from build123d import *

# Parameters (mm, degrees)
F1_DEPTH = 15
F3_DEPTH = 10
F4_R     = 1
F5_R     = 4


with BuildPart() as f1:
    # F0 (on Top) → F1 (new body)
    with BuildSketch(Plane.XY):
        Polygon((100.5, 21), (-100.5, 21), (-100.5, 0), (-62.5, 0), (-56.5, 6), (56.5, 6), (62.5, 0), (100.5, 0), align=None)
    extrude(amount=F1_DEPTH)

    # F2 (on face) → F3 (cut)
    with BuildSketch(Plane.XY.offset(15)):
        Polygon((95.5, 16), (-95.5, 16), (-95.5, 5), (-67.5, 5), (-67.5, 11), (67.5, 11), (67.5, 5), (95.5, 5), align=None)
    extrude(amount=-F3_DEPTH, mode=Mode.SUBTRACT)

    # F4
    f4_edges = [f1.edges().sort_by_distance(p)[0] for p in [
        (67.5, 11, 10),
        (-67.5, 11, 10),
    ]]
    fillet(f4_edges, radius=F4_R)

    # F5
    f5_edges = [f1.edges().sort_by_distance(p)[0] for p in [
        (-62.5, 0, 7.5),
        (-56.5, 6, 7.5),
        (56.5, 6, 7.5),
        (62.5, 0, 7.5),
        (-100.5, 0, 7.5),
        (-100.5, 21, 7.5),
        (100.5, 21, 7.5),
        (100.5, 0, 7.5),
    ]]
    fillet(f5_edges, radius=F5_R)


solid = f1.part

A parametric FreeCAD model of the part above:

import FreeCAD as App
import Part
import Sketcher
from FreeCAD import Vector


def edges_at(feature, points):
    """Names of the edges that pass closest to the given points."""
    edges = feature.Shape.Edges
    near = lambda p: min(range(len(edges)), key=lambda i: edges[i].distToShape(Part.Vertex(*p))[0])
    return sorted({f"Edge{near(p) + 1}" for p in points})

doc = App.newDocument("Part")
body = doc.addObject("PartDesign::Body", "Body")

sketch1 = doc.addObject("Sketcher::SketchObject", "Sketch")
body.addObject(sketch1)
sketch1.AttachmentSupport = (doc.XY_Plane, [""])
sketch1.MapMode = "FlatFace"
sketch1.addGeometry(Part.LineSegment(Vector(100, 21, 0), Vector(-100, 21, 0)), False)
sketch1.addGeometry(Part.LineSegment(Vector(-100, 21, 0), Vector(-100, 0, 0)), False)
sketch1.addGeometry(Part.LineSegment(Vector(-100, 0, 0), Vector(-62, 0, 0)), False)
sketch1.addGeometry(Part.LineSegment(Vector(-62, 0, 0), Vector(-56, 6, 0)), False)
sketch1.addGeometry(Part.LineSegment(Vector(-56, 6, 0), Vector(56, 6, 0)), False)
sketch1.addGeometry(Part.LineSegment(Vector(56, 6, 0), Vector(62, 0, 0)), False)
sketch1.addGeometry(Part.LineSegment(Vector(62, 0, 0), Vector(100, 0, 0)), False)
sketch1.addGeometry(Part.LineSegment(Vector(100, 0, 0), Vector(100, 21, 0)), False)
sketch1.addConstraint(Sketcher.Constraint("Coincident", 0, 2, 1, 1))
sketch1.addConstraint(Sketcher.Constraint("Coincident", 1, 2, 2, 1))
sketch1.addConstraint(Sketcher.Constraint("Coincident", 2, 2, 3, 1))
sketch1.addConstraint(Sketcher.Constraint("Coincident", 3, 2, 4, 1))
sketch1.addConstraint(Sketcher.Constraint("Coincident", 4, 2, 5, 1))
sketch1.addConstraint(Sketcher.Constraint("Coincident", 5, 2, 6, 1))
sketch1.addConstraint(Sketcher.Constraint("Coincident", 6, 2, 7, 1))
sketch1.addConstraint(Sketcher.Constraint("Coincident", 7, 2, 0, 1))
sketch1.addConstraint(Sketcher.Constraint("Horizontal", 0))
sketch1.addConstraint(Sketcher.Constraint("Vertical", 1))
sketch1.addConstraint(Sketcher.Constraint("Horizontal", 2))
sketch1.addConstraint(Sketcher.Constraint("Horizontal", 4))
sketch1.addConstraint(Sketcher.Constraint("Horizontal", 6))
sketch1.addConstraint(Sketcher.Constraint("Vertical", 7))
sketch1.addConstraint(Sketcher.Constraint("Symmetric", 2, 2, 5, 2, -1, 1))
sketch1.addConstraint(Sketcher.Constraint("Symmetric", 1, 2, 6, 2, -2))
sketch1.addConstraint(Sketcher.Constraint("Perpendicular", 3, 5))
sketch1.addConstraint(Sketcher.Constraint("Equal", 3, 5))
sketch1.addConstraint(Sketcher.Constraint("DistanceX", 0, 2, 0, 1, 201.0))
sketch1.addConstraint(Sketcher.Constraint("DistanceX", 2, 1, 2, 2, 38.0))
sketch1.addConstraint(Sketcher.Constraint("DistanceX", 4, 1, 4, 2, 113.0))
sketch1.addConstraint(Sketcher.Constraint("DistanceY", 1, 2, 1, 1, 21.0))
pad1 = doc.addObject("PartDesign::Pad", "Pad")
body.addObject(pad1)
pad1.Profile = sketch1
pad1.Length = 15

sketch2 = doc.addObject("Sketcher::SketchObject", "Sketch001")
body.addObject(sketch2)
sketch2.AttachmentSupport = (doc.XY_Plane, [""])
sketch2.MapMode = "FlatFace"
sketch2.AttachmentOffset = App.Placement(Vector(0, 0, 15), App.Rotation())
sketch2.addGeometry(Part.LineSegment(Vector(96, 16, 0), Vector(-96, 16, 0)), False)
sketch2.addGeometry(Part.LineSegment(Vector(-96, 16, 0), Vector(-96, 5, 0)), False)
sketch2.addGeometry(Part.LineSegment(Vector(-96, 5, 0), Vector(-68, 5, 0)), False)
sketch2.addGeometry(Part.LineSegment(Vector(-68, 5, 0), Vector(-68, 11, 0)), False)
sketch2.addGeometry(Part.LineSegment(Vector(-68, 11, 0), Vector(68, 11, 0)), False)
sketch2.addGeometry(Part.LineSegment(Vector(68, 11, 0), Vector(68, 5, 0)), False)
sketch2.addGeometry(Part.LineSegment(Vector(68, 5, 0), Vector(96, 5, 0)), False)
sketch2.addGeometry(Part.LineSegment(Vector(96, 5, 0), Vector(96, 16, 0)), False)
sketch2.addConstraint(Sketcher.Constraint("Coincident", 0, 2, 1, 1))
sketch2.addConstraint(Sketcher.Constraint("Coincident", 1, 2, 2, 1))
sketch2.addConstraint(Sketcher.Constraint("Coincident", 2, 2, 3, 1))
sketch2.addConstraint(Sketcher.Constraint("Coincident", 3, 2, 4, 1))
sketch2.addConstraint(Sketcher.Constraint("Coincident", 4, 2, 5, 1))
sketch2.addConstraint(Sketcher.Constraint("Coincident", 5, 2, 6, 1))
sketch2.addConstraint(Sketcher.Constraint("Coincident", 6, 2, 7, 1))
sketch2.addConstraint(Sketcher.Constraint("Coincident", 7, 2, 0, 1))
sketch2.addConstraint(Sketcher.Constraint("Horizontal", 0))
sketch2.addConstraint(Sketcher.Constraint("Vertical", 1))
sketch2.addConstraint(Sketcher.Constraint("Horizontal", 2))
sketch2.addConstraint(Sketcher.Constraint("Vertical", 3))
sketch2.addConstraint(Sketcher.Constraint("Horizontal", 4))
sketch2.addConstraint(Sketcher.Constraint("Vertical", 5))
sketch2.addConstraint(Sketcher.Constraint("Horizontal", 6))
sketch2.addConstraint(Sketcher.Constraint("Vertical", 7))
sketch2.addConstraint(Sketcher.Constraint("Symmetric", 2, 2, 5, 2, -2))
sketch2.addConstraint(Sketcher.Constraint("Equal", 2, 6))
sketch2.addConstraint(Sketcher.Constraint("DistanceX", 0, 2, 0, 1, 191.0))
sketch2.addConstraint(Sketcher.Constraint("DistanceX", 2, 1, 2, 2, 28.0))
sketch2.addConstraint(Sketcher.Constraint("DistanceY", 1, 2, 1, 1, 11.0))
sketch2.addConstraint(Sketcher.Constraint("DistanceY", 3, 1, 3, 2, 6.0))
sketch2.addConstraint(Sketcher.Constraint("DistanceY", -1, 1, 0, 2, 16.0))
pocket1 = doc.addObject("PartDesign::Pocket", "Pocket")
body.addObject(pocket1)
pocket1.Profile = sketch2
pocket1.Length = 10
doc.recompute()

fillet = doc.addObject("PartDesign::Fillet", "Fillet")
body.addObject(fillet)
fillet.Base = (pocket1, edges_at(pocket1, [(67.5, 11, 10), (-67.5, 11, 10)]))
fillet.Radius = 1
doc.recompute()

fillet2 = doc.addObject("PartDesign::Fillet", "Fillet001")
body.addObject(fillet2)
fillet2.Base = (fillet, edges_at(fillet, [
    (-62.5, 0, 7.5),
    (-56.5, 6, 7.5),
    (56.5, 6, 7.5),
    (62.5, 0, 7.5),
    (-100.5, 0, 7.5),
    (-100.5, 21, 7.5),
    (100.5, 21, 7.5),
    (100.5, 0, 7.5),
]))
fillet2.Radius = 4

doc.recompute()
